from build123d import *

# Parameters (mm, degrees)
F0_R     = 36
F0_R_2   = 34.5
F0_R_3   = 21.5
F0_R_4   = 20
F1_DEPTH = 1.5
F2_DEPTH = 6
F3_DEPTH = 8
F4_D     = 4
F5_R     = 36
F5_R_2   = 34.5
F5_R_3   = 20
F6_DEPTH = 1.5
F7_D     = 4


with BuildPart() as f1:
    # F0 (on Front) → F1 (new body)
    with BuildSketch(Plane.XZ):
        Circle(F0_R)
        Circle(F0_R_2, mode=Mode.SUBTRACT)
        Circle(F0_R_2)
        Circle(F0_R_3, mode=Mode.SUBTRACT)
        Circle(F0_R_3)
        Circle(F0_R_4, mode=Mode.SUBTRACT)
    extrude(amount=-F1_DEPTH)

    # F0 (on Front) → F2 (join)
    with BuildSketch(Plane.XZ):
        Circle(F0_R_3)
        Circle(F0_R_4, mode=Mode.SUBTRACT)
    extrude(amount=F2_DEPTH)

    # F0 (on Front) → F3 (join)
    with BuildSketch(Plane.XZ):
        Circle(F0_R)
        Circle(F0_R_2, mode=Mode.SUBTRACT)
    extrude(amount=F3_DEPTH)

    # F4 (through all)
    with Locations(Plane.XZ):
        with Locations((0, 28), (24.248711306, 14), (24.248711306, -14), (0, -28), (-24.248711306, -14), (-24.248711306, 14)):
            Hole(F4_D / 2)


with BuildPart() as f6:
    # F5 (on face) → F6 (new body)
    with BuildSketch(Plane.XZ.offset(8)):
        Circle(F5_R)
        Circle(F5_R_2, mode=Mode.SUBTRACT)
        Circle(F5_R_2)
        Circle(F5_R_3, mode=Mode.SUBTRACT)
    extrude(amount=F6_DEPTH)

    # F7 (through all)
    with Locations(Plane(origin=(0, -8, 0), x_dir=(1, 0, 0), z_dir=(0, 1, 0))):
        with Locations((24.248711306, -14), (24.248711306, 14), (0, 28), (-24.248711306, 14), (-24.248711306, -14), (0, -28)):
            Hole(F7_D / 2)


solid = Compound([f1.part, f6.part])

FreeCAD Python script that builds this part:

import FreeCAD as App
import Part
import Sketcher

V = App.Vector

doc = App.newDocument("Part")
body = doc.addObject("PartDesign::Body", "Body")

# Sketch on XZ plane
sketch1 = body.newObject("Sketcher::SketchObject", "Sketch")
sketch1.AttachmentSupport = (doc.getObject("XZ_Plane"), [""])
sketch1.MapMode = "FlatFace"
sketch1.addGeometry(Part.Circle(V(0, 0, 0), V(0, 0, 1), 36), False)
sketch1.addGeometry(Part.Circle(V(0, 0, 0), V(0, 0, 1), 20), False)
sketch1.addConstraint(Sketcher.Constraint("Coincident", 0, 3, -1, 1))
sketch1.addConstraint(Sketcher.Constraint("Coincident", 1, 3, -1, 1))
sketch1.addConstraint(Sketcher.Constraint("Diameter", 0, 72.0))
sketch1.addConstraint(Sketcher.Constraint("Diameter", 1, 40.0))
pad1 = body.newObject("PartDesign::Pad", "Pad")
pad1.Profile = sketch1
pad1.Length = 1.5
pad1.Reversed = True

# Sketch on XZ plane
sketch2 = body.newObject("Sketcher::SketchObject", "Sketch001")
sketch2.AttachmentSupport = (doc.getObject("XZ_Plane"), [""])
sketch2.MapMode = "FlatFace"
sketch2.addGeometry(Part.Circle(V(0, 0, 0), V(0, 0, 1), 22), False)
sketch2.addGeometry(Part.Circle(V(0, 0, 0), V(0, 0, 1), 20), False)
sketch2.addConstraint(Sketcher.Constraint("Coincident", 0, 3, -1, 1))
sketch2.addConstraint(Sketcher.Constraint("Coincident", 1, 3, -1, 1))
sketch2.addConstraint(Sketcher.Constraint("Diameter", 0, 43.0))
sketch2.addConstraint(Sketcher.Constraint("Diameter", 1, 40.0))
pad2 = body.newObject("PartDesign::Pad", "Pad001")
pad2.Profile = sketch2
pad2.Length = 6

# Sketch on XZ plane
sketch3 = body.newObject("Sketcher::SketchObject", "Sketch002")
sketch3.AttachmentSupport = (doc.getObject("XZ_Plane"), [""])
sketch3.MapMode = "FlatFace"
sketch3.addGeometry(Part.Circle(V(0, 0, 0), V(0, 0, 1), 36), False)
sketch3.addGeometry(Part.Circle(V(0, 0, 0), V(0, 0, 1), 34), False)
sketch3.addConstraint(Sketcher.Constraint("Coincident", 0, 3, -1, 1))
sketch3.addConstraint(Sketcher.Constraint("Coincident", 1, 3, -1, 1))
sketch3.addConstraint(Sketcher.Constraint("Diameter", 0, 72.0))
sketch3.addConstraint(Sketcher.Constraint("Diameter", 1, 69.0))
pad3 = body.newObject("PartDesign::Pad", "Pad002")
pad3.Profile = sketch3
pad3.Length = 8

# Sketch on XZ plane
sketch4 = body.newObject("Sketcher::SketchObject", "Sketch003")
sketch4.AttachmentSupport = (doc.getObject("XZ_Plane"), [""])
sketch4.MapMode = "FlatFace"
sketch4.addGeometry(Part.Circle(V(0, 28, 0), V(0, 0, 1), 2), False)
sketch4.addGeometry(Part.Circle(V(24.2, 14, 0), V(0, 0, 1), 2), False)
sketch4.addGeometry(Part.Circle(V(24.2, -14, 0), V(0, 0, 1), 2), False)
sketch4.addGeometry(Part.Circle(V(0, -28, 0), V(0, 0, 1), 2), False)
sketch4.addGeometry(Part.Circle(V(-24.2, -14, 0), V(0, 0, 1), 2), False)
sketch4.addGeometry(Part.Circle(V(-24.2, 14, 0), V(0, 0, 1), 2), False)
sketch4.addConstraint(Sketcher.Constraint("Equal", 0, 1))
sketch4.addConstraint(Sketcher.Constraint("Equal", 1, 2))
sketch4.addConstraint(Sketcher.Constraint("Equal", 2, 3))
sketch4.addConstraint(Sketcher.Constraint("Equal", 3, 4))
sketch4.addConstraint(Sketcher.Constraint("Equal", 4, 5))
sketch4.addConstraint(Sketcher.Constraint("Symmetric", 0, 3, 3, 3, -1, 1))
sketch4.addConstraint(Sketcher.Constraint("Symmetric", 1, 3, 4, 3, -1, 1))
sketch4.addConstraint(Sketcher.Constraint("Symmetric", 2, 3, 5, 3, -1, 1))
sketch4.addConstraint(Sketcher.Constraint("Symmetric", 2, 3, 4, 3, -2))
sketch4.addConstraint(Sketcher.Constraint("PointOnObject", 0, 3, -2))
sketch4.addConstraint(Sketcher.Constraint("Diameter", 0, 4.0))
sketch4.addConstraint(Sketcher.Constraint("DistanceY", -1, 1, 0, 3, 28.0))
sketch4.addConstraint(Sketcher.Constraint("DistanceY", -1, 1, 1, 3, 14.0))
sketch4.addConstraint(Sketcher.Constraint("DistanceX", -1, 1, 1, 3, 24.248711))
doc.recompute()
hole = body.newObject("PartDesign::Hole", "Hole")
hole.Profile = sketch4
hole.ThreadType = "None"
hole.Diameter = 4
hole.DepthType = "ThroughAll"
body2 = doc.addObject("PartDesign::Body", "Body001")

# Sketch on XZ plane
sketch5 = body2.newObject("Sketcher::SketchObject", "Sketch004")
sketch5.AttachmentSupport = (doc.getObject("XZ_Plane001"), [""])
sketch5.MapMode = "FlatFace"
sketch5.AttachmentOffset = App.Placement(V(0, 0, 8), App.Rotation())
sketch5.addGeometry(Part.Circle(V(0, 0, 0), V(0, 0, 1), 36), False)
sketch5.addGeometry(Part.Circle(V(0, 0, 0), V(0, 0, 1), 20), False)
sketch5.addConstraint(Sketcher.Constraint("Coincident", 0, 3, -1, 1))
sketch5.addConstraint(Sketcher.Constraint("Coincident", 1, 3, -1, 1))
sketch5.addConstraint(Sketcher.Constraint("Diameter", 0, 72.0))
sketch5.addConstraint(Sketcher.Constraint("Diameter", 1, 40.0))
pad4 = body2.newObject("PartDesign::Pad", "Pad003")
pad4.Profile = sketch5
pad4.Length = 1.5

# Sketch on XZ plane
sketch6 = body2.newObject("Sketcher::SketchObject", "Sketch005")
sketch6.AttachmentSupport = (doc.getObject("XZ_Plane001"), [""])
sketch6.MapMode = "FlatFace"
sketch6.AttachmentOffset = App.Placement(V(0, 0, 8), App.Rotation())
sketch6.addGeometry(Part.Circle(V(24.2, 14, 0), V(0, 0, 1), 2), False)
sketch6.addGeometry(Part.Circle(V(24.2, -14, 0), V(0, 0, 1), 2), False)
sketch6.addGeometry(Part.Circle(V(0, -28, 0), V(0, 0, 1), 2), False)
sketch6.addGeometry(Part.Circle(V(-24.2, -14, 0), V(0, 0, 1), 2), False)
sketch6.addGeometry(Part.Circle(V(-24.2, 14, 0), V(0, 0, 1), 2), False)
sketch6.addGeometry(Part.Circle(V(0, 28, 0), V(0, 0, 1), 2), False)
sketch6.addConstraint(Sketcher.Constraint("Equal", 0, 1))
sketch6.addConstraint(Sketcher.Constraint("Equal", 1, 2))
sketch6.addConstraint(Sketcher.Constraint("Equal", 2, 3))
sketch6.addConstraint(Sketcher.Constraint("Equal", 3, 4))
sketch6.addConstraint(Sketcher.Constraint("Equal", 4, 5))
sketch6.addConstraint(Sketcher.Constraint("Symmetric", 0, 3, 3, 3, -1, 1))
sketch6.addConstraint(Sketcher.Constraint("Symmetric", 1, 3, 4, 3, -1, 1))
sketch6.addConstraint(Sketcher.Constraint("Symmetric", 2, 3, 5, 3, -1, 1))
sketch6.addConstraint(Sketcher.Constraint("Symmetric", 1, 3, 3, 3, -2))
sketch6.addConstraint(Sketcher.Constraint("PointOnObject", 2, 3, -2))
sketch6.addConstraint(Sketcher.Constraint("Diameter", 0, 4.0))
sketch6.addConstraint(Sketcher.Constraint("DistanceY", -1, 1, 0, 3, 14.0))
sketch6.addConstraint(Sketcher.Constraint("DistanceY", 2, 3, -1, 1, 28.0))
sketch6.addConstraint(Sketcher.Constraint("DistanceX", -1, 1, 0, 3, 24.248711))
doc.recompute()
hole2 = body2.newObject("PartDesign::Hole", "Hole001")
hole2.Profile = sketch6
hole2.ThreadType = "None"
hole2.Diameter = 4
hole2.DepthType = "ThroughAll"
hole2.Reversed = True

doc.recompute()
